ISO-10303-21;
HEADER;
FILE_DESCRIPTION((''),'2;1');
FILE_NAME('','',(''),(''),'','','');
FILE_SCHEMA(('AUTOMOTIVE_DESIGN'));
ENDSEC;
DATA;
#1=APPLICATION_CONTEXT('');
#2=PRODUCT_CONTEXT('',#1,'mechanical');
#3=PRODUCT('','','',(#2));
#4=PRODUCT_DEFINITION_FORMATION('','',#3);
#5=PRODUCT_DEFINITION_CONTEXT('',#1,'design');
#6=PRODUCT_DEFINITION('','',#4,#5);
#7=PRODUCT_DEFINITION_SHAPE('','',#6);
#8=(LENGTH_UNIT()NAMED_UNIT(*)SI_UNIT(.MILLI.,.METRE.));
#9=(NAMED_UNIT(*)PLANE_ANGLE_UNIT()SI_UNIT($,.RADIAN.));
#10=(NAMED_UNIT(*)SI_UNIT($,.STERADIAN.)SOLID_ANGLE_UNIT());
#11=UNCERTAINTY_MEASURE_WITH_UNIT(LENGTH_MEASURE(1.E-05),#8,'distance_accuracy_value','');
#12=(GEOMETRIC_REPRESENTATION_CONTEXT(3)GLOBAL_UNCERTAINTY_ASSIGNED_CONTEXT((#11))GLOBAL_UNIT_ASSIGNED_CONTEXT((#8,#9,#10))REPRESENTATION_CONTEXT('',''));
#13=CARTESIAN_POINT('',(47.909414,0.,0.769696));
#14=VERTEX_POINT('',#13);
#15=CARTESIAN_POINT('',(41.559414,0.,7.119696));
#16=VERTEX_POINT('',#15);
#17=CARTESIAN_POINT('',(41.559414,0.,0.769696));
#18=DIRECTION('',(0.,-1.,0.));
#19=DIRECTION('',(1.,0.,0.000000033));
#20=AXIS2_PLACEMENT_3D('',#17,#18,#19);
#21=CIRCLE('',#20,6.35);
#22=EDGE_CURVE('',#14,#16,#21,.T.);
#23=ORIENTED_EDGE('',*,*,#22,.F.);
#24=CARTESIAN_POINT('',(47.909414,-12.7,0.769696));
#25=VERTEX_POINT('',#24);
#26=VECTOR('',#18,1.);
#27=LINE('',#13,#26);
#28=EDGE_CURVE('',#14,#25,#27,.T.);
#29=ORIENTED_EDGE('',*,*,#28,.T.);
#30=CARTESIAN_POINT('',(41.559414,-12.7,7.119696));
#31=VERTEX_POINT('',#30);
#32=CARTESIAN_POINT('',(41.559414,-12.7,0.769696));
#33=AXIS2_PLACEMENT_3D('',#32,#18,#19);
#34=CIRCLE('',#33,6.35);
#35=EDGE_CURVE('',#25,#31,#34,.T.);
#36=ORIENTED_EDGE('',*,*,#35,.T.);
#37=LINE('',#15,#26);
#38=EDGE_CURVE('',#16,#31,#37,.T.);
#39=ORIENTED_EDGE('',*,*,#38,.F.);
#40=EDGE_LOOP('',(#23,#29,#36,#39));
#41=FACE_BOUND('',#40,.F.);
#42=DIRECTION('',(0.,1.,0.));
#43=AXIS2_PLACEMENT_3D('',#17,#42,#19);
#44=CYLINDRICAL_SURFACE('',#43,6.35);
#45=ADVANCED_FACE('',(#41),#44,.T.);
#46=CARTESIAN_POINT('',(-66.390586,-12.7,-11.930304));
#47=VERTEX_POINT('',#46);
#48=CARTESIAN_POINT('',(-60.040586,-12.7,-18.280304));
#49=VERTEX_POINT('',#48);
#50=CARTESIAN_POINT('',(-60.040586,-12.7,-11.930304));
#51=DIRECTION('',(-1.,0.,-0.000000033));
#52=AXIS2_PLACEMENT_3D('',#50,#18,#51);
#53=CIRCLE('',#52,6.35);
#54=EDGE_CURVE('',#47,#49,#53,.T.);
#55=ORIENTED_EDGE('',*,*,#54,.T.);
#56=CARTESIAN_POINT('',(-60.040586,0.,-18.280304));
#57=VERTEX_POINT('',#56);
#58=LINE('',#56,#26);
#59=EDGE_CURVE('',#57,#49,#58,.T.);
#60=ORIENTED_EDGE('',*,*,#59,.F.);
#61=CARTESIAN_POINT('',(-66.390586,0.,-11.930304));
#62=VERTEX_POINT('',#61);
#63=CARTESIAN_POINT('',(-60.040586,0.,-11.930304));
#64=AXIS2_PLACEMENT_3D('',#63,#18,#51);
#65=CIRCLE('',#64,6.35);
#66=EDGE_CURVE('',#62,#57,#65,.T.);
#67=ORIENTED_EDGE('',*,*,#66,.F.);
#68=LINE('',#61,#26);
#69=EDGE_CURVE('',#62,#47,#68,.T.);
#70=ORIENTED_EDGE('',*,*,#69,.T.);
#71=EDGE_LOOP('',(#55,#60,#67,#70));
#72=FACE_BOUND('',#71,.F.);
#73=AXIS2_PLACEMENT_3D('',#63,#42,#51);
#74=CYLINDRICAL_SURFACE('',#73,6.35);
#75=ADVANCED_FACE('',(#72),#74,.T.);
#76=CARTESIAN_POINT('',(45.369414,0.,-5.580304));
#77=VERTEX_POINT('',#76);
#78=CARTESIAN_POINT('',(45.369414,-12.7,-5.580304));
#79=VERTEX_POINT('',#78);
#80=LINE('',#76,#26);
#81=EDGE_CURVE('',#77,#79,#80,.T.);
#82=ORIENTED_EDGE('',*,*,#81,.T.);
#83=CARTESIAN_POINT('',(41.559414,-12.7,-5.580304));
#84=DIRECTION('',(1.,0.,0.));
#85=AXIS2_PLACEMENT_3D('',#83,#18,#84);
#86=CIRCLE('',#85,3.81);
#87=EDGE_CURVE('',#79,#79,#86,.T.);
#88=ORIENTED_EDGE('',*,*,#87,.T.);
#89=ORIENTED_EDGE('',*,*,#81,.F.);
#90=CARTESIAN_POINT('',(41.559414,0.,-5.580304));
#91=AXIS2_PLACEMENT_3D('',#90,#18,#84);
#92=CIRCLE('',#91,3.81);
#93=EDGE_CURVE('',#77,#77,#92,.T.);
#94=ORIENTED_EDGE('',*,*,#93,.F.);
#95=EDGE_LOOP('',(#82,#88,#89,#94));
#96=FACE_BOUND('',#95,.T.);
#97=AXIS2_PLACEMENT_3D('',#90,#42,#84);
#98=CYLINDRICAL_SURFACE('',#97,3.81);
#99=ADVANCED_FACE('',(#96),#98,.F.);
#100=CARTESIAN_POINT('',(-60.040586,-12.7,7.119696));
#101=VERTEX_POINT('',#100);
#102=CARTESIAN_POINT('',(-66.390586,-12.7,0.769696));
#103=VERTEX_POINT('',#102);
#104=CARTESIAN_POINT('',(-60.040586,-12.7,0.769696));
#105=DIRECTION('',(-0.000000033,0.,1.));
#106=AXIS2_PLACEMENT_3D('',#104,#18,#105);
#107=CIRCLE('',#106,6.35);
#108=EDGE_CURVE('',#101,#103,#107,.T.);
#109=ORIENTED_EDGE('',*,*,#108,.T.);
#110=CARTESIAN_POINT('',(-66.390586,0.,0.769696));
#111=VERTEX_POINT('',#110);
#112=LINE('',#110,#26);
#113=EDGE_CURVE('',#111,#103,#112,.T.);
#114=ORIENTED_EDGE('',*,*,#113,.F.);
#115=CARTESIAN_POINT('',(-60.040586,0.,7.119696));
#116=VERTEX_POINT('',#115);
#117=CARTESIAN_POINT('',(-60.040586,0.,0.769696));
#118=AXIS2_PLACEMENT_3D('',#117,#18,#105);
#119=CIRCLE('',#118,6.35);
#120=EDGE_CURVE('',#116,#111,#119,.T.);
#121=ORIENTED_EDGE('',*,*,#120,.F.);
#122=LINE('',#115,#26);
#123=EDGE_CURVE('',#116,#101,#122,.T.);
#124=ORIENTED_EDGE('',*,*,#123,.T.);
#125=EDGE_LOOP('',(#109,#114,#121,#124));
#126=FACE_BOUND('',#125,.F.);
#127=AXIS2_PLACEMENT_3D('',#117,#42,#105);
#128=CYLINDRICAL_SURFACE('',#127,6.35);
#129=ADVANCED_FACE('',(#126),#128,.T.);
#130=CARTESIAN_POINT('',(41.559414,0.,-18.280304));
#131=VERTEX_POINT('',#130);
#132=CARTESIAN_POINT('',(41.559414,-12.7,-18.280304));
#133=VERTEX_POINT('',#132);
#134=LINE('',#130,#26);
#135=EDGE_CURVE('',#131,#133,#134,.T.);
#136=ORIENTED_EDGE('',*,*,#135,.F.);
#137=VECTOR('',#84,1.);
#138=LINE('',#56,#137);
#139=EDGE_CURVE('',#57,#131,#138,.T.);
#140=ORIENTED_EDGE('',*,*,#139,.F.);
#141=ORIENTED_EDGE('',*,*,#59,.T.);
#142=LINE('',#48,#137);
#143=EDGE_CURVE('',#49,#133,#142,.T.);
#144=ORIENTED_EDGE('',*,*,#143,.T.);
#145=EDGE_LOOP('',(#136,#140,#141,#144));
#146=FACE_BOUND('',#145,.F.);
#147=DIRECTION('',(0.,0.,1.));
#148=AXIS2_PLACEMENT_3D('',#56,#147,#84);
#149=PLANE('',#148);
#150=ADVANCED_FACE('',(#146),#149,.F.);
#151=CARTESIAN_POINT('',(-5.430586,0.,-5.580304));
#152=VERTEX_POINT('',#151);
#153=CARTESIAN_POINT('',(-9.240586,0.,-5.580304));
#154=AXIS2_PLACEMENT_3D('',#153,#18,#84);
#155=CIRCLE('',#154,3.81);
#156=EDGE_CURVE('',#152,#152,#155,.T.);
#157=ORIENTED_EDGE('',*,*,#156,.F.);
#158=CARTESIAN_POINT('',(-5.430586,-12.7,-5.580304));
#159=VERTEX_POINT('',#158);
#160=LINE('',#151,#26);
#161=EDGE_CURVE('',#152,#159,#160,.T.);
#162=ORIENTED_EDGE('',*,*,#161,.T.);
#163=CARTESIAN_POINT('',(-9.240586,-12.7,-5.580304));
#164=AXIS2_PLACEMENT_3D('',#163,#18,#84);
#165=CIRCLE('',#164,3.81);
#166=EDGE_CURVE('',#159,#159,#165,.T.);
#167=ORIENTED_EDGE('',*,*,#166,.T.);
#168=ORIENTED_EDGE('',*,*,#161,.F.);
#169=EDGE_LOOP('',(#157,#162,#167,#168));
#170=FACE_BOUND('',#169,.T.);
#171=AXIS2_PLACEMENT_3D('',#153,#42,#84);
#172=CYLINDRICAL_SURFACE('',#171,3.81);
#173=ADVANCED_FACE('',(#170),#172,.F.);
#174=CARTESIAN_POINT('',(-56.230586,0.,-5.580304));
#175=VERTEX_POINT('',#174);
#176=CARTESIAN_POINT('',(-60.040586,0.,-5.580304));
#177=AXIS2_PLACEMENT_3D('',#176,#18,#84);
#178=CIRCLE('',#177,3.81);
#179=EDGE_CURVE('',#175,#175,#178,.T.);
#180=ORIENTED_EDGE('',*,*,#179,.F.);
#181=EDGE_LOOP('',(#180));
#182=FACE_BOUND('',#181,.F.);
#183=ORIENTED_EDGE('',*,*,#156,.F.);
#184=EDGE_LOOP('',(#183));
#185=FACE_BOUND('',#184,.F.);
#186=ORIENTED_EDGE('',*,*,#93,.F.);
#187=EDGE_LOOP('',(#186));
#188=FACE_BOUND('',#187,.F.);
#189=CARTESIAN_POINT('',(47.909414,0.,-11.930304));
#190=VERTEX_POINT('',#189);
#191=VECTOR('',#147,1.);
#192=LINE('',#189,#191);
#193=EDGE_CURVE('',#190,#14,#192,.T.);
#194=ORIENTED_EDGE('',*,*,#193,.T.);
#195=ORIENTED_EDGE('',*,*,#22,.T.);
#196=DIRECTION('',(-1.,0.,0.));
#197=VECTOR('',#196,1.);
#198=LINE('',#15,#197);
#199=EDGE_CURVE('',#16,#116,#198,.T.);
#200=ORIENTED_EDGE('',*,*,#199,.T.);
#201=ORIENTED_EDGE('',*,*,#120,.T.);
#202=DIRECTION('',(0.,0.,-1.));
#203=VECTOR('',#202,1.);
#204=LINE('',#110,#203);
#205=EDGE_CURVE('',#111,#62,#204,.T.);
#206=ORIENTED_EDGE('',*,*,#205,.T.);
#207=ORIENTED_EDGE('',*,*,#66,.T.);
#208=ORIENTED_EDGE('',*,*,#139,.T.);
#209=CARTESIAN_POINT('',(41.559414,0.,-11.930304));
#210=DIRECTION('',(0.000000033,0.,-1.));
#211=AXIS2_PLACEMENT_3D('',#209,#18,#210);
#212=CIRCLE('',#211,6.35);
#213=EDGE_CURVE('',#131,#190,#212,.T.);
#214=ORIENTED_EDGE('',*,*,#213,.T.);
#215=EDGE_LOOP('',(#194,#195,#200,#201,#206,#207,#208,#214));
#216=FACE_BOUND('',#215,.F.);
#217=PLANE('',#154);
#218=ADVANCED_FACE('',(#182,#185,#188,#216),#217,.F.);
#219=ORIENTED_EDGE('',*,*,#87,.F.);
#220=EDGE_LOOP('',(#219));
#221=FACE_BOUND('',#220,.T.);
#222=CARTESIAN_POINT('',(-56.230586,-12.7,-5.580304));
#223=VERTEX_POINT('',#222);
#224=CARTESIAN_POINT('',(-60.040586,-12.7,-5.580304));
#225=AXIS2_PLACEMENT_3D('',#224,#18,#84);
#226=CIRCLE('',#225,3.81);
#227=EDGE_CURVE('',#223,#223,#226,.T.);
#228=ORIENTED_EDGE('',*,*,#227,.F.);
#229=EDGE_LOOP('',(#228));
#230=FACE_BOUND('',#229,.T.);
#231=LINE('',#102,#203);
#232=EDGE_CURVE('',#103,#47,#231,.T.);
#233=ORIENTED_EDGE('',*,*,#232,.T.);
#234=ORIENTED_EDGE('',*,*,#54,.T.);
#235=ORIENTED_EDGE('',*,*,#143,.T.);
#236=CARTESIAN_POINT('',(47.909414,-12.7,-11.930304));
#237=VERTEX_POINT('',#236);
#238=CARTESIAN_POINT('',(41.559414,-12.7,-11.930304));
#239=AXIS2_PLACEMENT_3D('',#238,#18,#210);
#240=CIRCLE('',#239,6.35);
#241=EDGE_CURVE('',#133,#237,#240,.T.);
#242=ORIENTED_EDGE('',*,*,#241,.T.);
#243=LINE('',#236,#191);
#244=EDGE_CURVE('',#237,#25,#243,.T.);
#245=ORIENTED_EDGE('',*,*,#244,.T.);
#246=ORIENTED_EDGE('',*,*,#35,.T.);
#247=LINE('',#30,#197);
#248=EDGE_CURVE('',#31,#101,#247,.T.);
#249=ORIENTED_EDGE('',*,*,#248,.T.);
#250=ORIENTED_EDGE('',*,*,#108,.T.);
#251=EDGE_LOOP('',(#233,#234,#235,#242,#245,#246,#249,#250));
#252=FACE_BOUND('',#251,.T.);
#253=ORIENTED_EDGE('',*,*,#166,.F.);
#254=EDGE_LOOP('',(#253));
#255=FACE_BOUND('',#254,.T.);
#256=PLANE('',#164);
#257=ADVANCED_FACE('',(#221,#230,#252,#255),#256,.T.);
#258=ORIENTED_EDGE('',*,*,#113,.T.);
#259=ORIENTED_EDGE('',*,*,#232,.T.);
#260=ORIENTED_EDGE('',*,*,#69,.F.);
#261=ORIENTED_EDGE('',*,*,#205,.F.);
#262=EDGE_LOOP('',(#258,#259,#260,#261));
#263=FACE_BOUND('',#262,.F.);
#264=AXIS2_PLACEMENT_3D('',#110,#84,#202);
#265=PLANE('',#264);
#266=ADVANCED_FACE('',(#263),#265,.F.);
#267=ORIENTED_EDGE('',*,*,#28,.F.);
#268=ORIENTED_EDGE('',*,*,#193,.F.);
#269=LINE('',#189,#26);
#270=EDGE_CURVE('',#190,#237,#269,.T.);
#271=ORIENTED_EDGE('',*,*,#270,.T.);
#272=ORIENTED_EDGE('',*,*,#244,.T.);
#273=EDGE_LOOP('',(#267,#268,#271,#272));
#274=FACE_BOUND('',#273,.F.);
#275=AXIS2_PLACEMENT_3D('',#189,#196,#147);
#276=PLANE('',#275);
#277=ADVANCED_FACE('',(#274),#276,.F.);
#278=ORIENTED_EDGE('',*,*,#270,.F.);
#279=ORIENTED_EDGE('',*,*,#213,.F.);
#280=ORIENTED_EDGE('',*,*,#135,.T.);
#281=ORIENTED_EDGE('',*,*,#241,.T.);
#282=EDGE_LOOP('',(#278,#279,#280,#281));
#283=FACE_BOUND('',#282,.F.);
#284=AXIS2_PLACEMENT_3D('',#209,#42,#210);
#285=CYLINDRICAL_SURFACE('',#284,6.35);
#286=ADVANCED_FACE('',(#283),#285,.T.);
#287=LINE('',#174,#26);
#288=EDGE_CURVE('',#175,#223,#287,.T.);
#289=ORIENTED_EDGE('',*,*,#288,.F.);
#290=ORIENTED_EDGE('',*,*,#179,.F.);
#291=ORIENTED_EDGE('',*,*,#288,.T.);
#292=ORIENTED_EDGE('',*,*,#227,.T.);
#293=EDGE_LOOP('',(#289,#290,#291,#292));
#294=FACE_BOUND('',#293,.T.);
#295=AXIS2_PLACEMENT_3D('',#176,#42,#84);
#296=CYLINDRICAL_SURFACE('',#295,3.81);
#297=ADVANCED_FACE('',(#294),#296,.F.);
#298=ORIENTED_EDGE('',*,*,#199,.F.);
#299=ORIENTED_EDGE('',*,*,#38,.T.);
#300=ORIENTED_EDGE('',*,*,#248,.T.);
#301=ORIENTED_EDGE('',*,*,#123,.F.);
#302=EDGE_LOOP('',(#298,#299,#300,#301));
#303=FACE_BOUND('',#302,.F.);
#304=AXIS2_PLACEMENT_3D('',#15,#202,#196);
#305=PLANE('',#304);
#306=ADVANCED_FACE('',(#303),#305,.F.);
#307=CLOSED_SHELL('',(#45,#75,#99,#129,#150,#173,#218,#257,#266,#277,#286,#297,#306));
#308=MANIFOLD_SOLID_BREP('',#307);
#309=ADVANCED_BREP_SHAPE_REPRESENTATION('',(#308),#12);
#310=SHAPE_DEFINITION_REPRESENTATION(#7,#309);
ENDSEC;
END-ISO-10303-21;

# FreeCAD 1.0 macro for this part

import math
import FreeCAD as App
import Part
import Sketcher
Q = App.Units.Quantity

doc = App.newDocument("Part")
body = doc.addObject("PartDesign::Body", "Body")

# Sketch on XZ plane
sketch1 = body.newObject("Sketcher::SketchObject", "Sketch")
sketch1.AttachmentSupport = (doc.getObject("XZ_Plane"), [""])
sketch1.MapMode = "FlatFace"
sketch1.addGeometry(Part.LineSegment(App.Vector(41.6, 7.1, 0), App.Vector(-60, 7.1, 0)), False)
sketch1.addGeometry(Part.ArcOfCircle(Part.Circle(App.Vector(-60, 0.8, 0), App.Vector(0, 0, 1), 6.4), math.radians(90), math.radians(180)), False)
sketch1.addGeometry(Part.LineSegment(App.Vector(-66.4, 0.8, 0), App.Vector(-66.4, -11.9, 0)), False)
sketch1.addGeometry(Part.ArcOfCircle(Part.Circle(App.Vector(-60, -11.9, 0), App.Vector(0, 0, 1), 6.4), math.radians(-180), math.radians(-90)), False)
sketch1.addGeometry(Part.LineSegment(App.Vector(-60, -18.3, 0), App.Vector(41.6, -18.3, 0)), False)
sketch1.addGeometry(Part.ArcOfCircle(Part.Circle(App.Vector(41.6, -11.9, 0), App.Vector(0, 0, 1), 6.4), math.radians(-90), math.radians(0)), False)
sketch1.addGeometry(Part.LineSegment(App.Vector(47.9, -11.9, 0), App.Vector(47.9, 0.8, 0)), False)
sketch1.addGeometry(Part.ArcOfCircle(Part.Circle(App.Vector(41.6, 0.8, 0), App.Vector(0, 0, 1), 6.4), math.radians(0), math.radians(90)), False)
sketch1.addGeometry(Part.Circle(App.Vector(-60, -5.6, 0), App.Vector(0, 0, 1), 3.8), False)
sketch1.addGeometry(Part.Circle(App.Vector(-9.2, -5.6, 0), App.Vector(0, 0, 1), 3.8), False)
sketch1.addGeometry(Part.Circle(App.Vector(41.6, -5.6, 0), App.Vector(0, 0, 1), 3.8), False)
sketch1.addConstraint(Sketcher.Constraint("Tangent", 0, 2, 1, 1))
sketch1.addConstraint(Sketcher.Constraint("Tangent", 1, 2, 2, 1))
sketch1.addConstraint(Sketcher.Constraint("Tangent", 2, 2, 3, 1))
sketch1.addConstraint(Sketcher.Constraint("Tangent", 3, 2, 4, 1))
sketch1.addConstraint(Sketcher.Constraint("Tangent", 4, 2, 5, 1))
sketch1.addConstraint(Sketcher.Constraint("Tangent", 5, 2, 6, 1))
sketch1.addConstraint(Sketcher.Constraint("Tangent", 6, 2, 7, 1))
sketch1.addConstraint(Sketcher.Constraint("Tangent", 7, 2, 0, 1))
sketch1.addConstraint(Sketcher.Constraint("Horizontal", 0))
sketch1.addConstraint(Sketcher.Constraint("Vertical", 2))
sketch1.addConstraint(Sketcher.Constraint("Horizontal", 4))
sketch1.addConstraint(Sketcher.Constraint("Vertical", 6))
sketch1.addConstraint(Sketcher.Constraint("Equal", 1, 3))
sketch1.addConstraint(Sketcher.Constraint("Equal", 3, 5))
sketch1.addConstraint(Sketcher.Constraint("Equal", 5, 7))
sketch1.addConstraint(Sketcher.Constraint("Equal", 8, 9))
sketch1.addConstraint(Sketcher.Constraint("Equal", 9, 10))
sketch1.addConstraint(Sketcher.Constraint("Horizontal", 8, 3, 9, 3))
sketch1.addConstraint(Sketcher.Constraint("Horizontal", 9, 3, 10, 3))
sketch1.addConstraint(Sketcher.Constraint("Vertical", 3, 3, 8, 3))
sketch1.addConstraint(Sketcher.Constraint("Vertical", 7, 3, 10, 3))
sketch1.addConstraint(Sketcher.Constraint("Diameter", 8, Q("0.3 in")))
sketch1.addConstraint(Sketcher.Constraint("DistanceX", 0, 2, 0, 1, Q("4 in")))
sketch1.addConstraint(Sketcher.Constraint("Radius", 1, Q("0.25 in")))
sketch1.addConstraint(Sketcher.Constraint("DistanceY", 2, 2, 2, 1, Q("0.5 in")))
sketch1.addConstraint(Sketcher.Constraint("DistanceX", 8, 3, 9, 3, Q("2 in")))
sketch1.addConstraint(Sketcher.Constraint("DistanceY", 8, 3, 0, 2, Q("0.5 in")))
sketch1.addConstraint(Sketcher.Constraint("DistanceX", 1, 3, -1, 1, 60.040586))
sketch1.addConstraint(Sketcher.Constraint("DistanceY", -1, 1, 1, 3, 0.769696))
pad1 = body.newObject("PartDesign::Pad", "Pad")
pad1.Profile = sketch1
pad1.Length = Q("0.5 in")

doc.recompute()
